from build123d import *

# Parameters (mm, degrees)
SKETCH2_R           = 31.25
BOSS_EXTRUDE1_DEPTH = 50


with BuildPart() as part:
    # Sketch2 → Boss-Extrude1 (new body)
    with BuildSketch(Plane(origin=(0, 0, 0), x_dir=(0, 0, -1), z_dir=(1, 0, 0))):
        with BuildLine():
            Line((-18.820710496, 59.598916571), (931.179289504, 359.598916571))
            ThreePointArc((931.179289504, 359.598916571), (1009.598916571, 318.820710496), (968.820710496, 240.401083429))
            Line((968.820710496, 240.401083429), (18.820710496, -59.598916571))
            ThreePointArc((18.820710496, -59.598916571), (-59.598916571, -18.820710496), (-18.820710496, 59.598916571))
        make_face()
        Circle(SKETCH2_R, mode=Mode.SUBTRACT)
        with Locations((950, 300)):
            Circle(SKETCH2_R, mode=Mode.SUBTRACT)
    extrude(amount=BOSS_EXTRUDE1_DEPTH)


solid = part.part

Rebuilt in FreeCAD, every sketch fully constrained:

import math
import FreeCAD as App
import Part
import Sketcher
from FreeCAD import Vector
Q = App.Units.Quantity

doc = App.newDocument("Part")
body = doc.addObject("PartDesign::Body", "Body")

# Sketch on YZ plane
sketch1 = doc.addObject("Sketcher::SketchObject", "Sketch")
body.addObject(sketch1)
sketch1.AttachmentSupport = (doc.YZ_Plane, [""])
sketch1.MapMode = "FlatFace"
sketch1.addGeometry(Part.LineSegment(Vector(359.598917, -931.17929, 0), Vector(59.598917, 18.82071, 0)), False)
sketch1.addGeometry(Part.ArcOfCircle(Part.Circle(Vector(0, 0, 0), Vector(0, 0, 1), 62.5), math.radians(17.525568), math.radians(197.525568)), False)
sketch1.addGeometry(Part.LineSegment(Vector(-59.598917, -18.82071, 0), Vector(240.401083, -968.82071, 0)), False)
sketch1.addGeometry(Part.ArcOfCircle(Part.Circle(Vector(300, -950, 0), Vector(0, 0, 1), 62.5), math.radians(-162.474432), math.radians(17.525568)), False)
sketch1.addGeometry(Part.Circle(Vector(0, 0, 0), Vector(0, 0, 1), 31.25), False)
sketch1.addGeometry(Part.Circle(Vector(300, -950, 0), Vector(0, 0, 1), 31.25), False)
sketch1.addConstraint(Sketcher.Constraint("Tangent", 0, 2, 1, 1))
sketch1.addConstraint(Sketcher.Constraint("Tangent", 1, 2, 2, 1))
sketch1.addConstraint(Sketcher.Constraint("Tangent", 2, 2, 3, 1))
sketch1.addConstraint(Sketcher.Constraint("Tangent", 3, 2, 0, 1))
sketch1.addConstraint(Sketcher.Constraint("Coincident", 1, 3, -1, 1))
sketch1.addConstraint(Sketcher.Constraint("Coincident", 4, 3, -1, 1))
sketch1.addConstraint(Sketcher.Constraint("Coincident", 5, 3, 3, 3))
sketch1.addConstraint(Sketcher.Constraint("Equal", 1, 3))
sketch1.addConstraint(Sketcher.Constraint("Equal", 4, 5))
sketch1.addConstraint(Sketcher.Constraint("Diameter", 4, Q("62.5 mm")))
sketch1.addConstraint(Sketcher.Constraint("Radius", 1, Q("62.5 mm")))
sketch1.addConstraint(Sketcher.Constraint("DistanceX", -1, 1, 3, 3, Q("300 mm")))
sketch1.addConstraint(Sketcher.Constraint("DistanceY", 3, 3, -1, 1, Q("950 mm")))
pad1 = doc.addObject("PartDesign::Pad", "Pad")
body.addObject(pad1)
pad1.Profile = sketch1
pad1.Length = 50

doc.recompute()
